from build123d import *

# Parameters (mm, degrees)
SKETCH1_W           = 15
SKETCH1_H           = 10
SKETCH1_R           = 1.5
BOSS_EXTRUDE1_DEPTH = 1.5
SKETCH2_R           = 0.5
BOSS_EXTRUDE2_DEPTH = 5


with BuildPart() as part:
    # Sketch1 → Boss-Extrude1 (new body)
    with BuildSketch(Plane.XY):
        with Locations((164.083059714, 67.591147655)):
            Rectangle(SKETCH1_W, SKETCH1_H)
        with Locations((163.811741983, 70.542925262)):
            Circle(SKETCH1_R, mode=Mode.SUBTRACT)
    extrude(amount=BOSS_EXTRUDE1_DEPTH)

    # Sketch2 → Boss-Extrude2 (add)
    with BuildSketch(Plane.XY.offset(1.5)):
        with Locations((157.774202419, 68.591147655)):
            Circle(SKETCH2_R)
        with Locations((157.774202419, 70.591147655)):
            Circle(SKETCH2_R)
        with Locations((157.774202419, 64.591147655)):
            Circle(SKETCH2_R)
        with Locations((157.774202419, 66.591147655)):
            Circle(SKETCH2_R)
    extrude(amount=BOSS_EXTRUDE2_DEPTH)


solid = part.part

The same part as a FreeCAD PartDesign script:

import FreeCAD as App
import Part
import Sketcher

V = App.Vector
Q = App.Units.Quantity

doc = App.newDocument("Part")
params = doc.addObject("Spreadsheet::Sheet", "Params")
for row, (alias, value) in enumerate([
    ("sketch1_diameter", "3 mm"),
    ("sketch1_width", "15 mm"),
    ("sketch1_height", "10 mm"),
    ("pad1_length", "1.5 mm"),
    ("sketch2_diameter", "1 mm"),
    ("pad2_length", "5 mm"),
], start=1):
    params.set(f"A{row}", alias)
    params.set(f"B{row}", "=" + value)
    params.setAlias(f"B{row}", alias)

body = doc.addObject("PartDesign::Body", "Body")

# Sketch on XY plane
sketch1 = body.newObject("Sketcher::SketchObject", "Sketch")
sketch1.AttachmentSupport = (doc.getObject("XY_Plane"), [""])
sketch1.MapMode = "FlatFace"
sketch1.addGeometry(Part.LineSegment(V(156.6, 72.6, 0), V(156.6, 62.6, 0)), False)
sketch1.addGeometry(Part.LineSegment(V(156.6, 62.6, 0), V(171.6, 62.6, 0)), False)
sketch1.addGeometry(Part.LineSegment(V(171.6, 62.6, 0), V(171.6, 72.6, 0)), False)
sketch1.addGeometry(Part.LineSegment(V(171.6, 72.6, 0), V(156.6, 72.6, 0)), False)
sketch1.addGeometry(Part.Circle(V(163.8, 70.5, 0), V(0, 0, 1), 1.5), False)
sketch1.addConstraint(Sketcher.Constraint("Coincident", 0, 2, 1, 1))
sketch1.addConstraint(Sketcher.Constraint("Coincident", 1, 2, 2, 1))
sketch1.addConstraint(Sketcher.Constraint("Coincident", 2, 2, 3, 1))
sketch1.addConstraint(Sketcher.Constraint("Coincident", 3, 2, 0, 1))
sketch1.addConstraint(Sketcher.Constraint("Vertical", 0))
sketch1.addConstraint(Sketcher.Constraint("Horizontal", 1))
sketch1.addConstraint(Sketcher.Constraint("Vertical", 2))
sketch1.addConstraint(Sketcher.Constraint("Horizontal", 3))
sketch1.addConstraint(Sketcher.Constraint("Diameter", 4, Q("3 mm")))
sketch1.addConstraint(Sketcher.Constraint("DistanceX", 1, 1, 1, 2, Q("15 mm")))
sketch1.addConstraint(Sketcher.Constraint("DistanceY", 0, 2, 0, 1, Q("10 mm")))
sketch1.addConstraint(Sketcher.Constraint("DistanceX", -1, 1, 4, 3, Q("163.811742 mm")))
sketch1.addConstraint(Sketcher.Constraint("DistanceX", -1, 1, 0, 2, Q("156.58306 mm")))
sketch1.addConstraint(Sketcher.Constraint("DistanceY", -1, 1, 4, 3, Q("70.542925 mm")))
sketch1.addConstraint(Sketcher.Constraint("DistanceY", -1, 1, 0, 2, Q("62.591148 mm")))
sketch1.setExpression("Constraints[8]", "Params.sketch1_diameter")
sketch1.setExpression("Constraints[9]", "Params.sketch1_width")
sketch1.setExpression("Constraints[10]", "Params.sketch1_height")
pad1 = body.newObject("PartDesign::Pad", "Pad")
pad1.Profile = sketch1
pad1.setExpression("Length", "Params.pad1_length")

# Sketch on XY plane
sketch2 = body.newObject("Sketcher::SketchObject", "Sketch001")
sketch2.AttachmentSupport = (doc.getObject("XY_Plane"), [""])
sketch2.MapMode = "FlatFace"
sketch2.AttachmentOffset = App.Placement(V(0, 0, 1.5), App.Rotation())
sketch2.addGeometry(Part.Circle(V(157.8, 68.6, 0), V(0, 0, 1), 0.5), False)
sketch2.addGeometry(Part.Circle(V(157.8, 70.6, 0), V(0, 0, 1), 0.5), False)
sketch2.addGeometry(Part.Circle(V(157.8, 64.6, 0), V(0, 0, 1), 0.5), False)
sketch2.addGeometry(Part.Circle(V(157.8, 66.6, 0), V(0, 0, 1), 0.5), False)
sketch2.addConstraint(Sketcher.Constraint("Equal", 0, 1))
sketch2.addConstraint(Sketcher.Constraint("Equal", 1, 2))
sketch2.addConstraint(Sketcher.Constraint("Equal", 2, 3))
sketch2.addConstraint(Sketcher.Constraint("Vertical", 0, 3, 1, 3))
sketch2.addConstraint(Sketcher.Constraint("Vertical", 1, 3, 2, 3))
sketch2.addConstraint(Sketcher.Constraint("Vertical", 2, 3, 3, 3))
sketch2.addConstraint(Sketcher.Constraint("Diameter", 0, Q("1 mm")))
sketch2.addConstraint(Sketcher.Constraint("DistanceY", 0, 3, 1, 3, Q("2 mm")))
sketch2.addConstraint(Sketcher.Constraint("DistanceY", 2, 3, 0, 3, Q("4 mm")))
sketch2.addConstraint(Sketcher.Constraint("DistanceY", 3, 3, 0, 3, Q("2 mm")))
sketch2.addConstraint(Sketcher.Constraint("DistanceX", -1, 1, 0, 3, Q("157.774202 mm")))
sketch2.addConstraint(Sketcher.Constraint("DistanceY", -1, 1, 0, 3, Q("68.591148 mm")))
sketch2.setExpression("Constraints[6]", "Params.sketch2_diameter")
pad2 = body.newObject("PartDesign::Pad", "Pad001")
pad2.Profile = sketch2
pad2.setExpression("Length", "Params.pad2_length")

doc.recompute()
